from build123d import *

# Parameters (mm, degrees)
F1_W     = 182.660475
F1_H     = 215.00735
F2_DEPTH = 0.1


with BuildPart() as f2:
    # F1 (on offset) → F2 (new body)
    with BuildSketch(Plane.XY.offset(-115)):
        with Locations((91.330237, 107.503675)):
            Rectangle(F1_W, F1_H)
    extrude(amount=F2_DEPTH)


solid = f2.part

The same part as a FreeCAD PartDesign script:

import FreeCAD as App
import Part
import Sketcher


def add_polygon(sketch, points):
    """Adds a closed chain of lines whose ends are joined by coincident constraints."""
    first, n = sketch.GeometryCount, len(points)
    for a, b in zip(points, points[1:] + points[:1]):
        sketch.addGeometry(Part.LineSegment(App.Vector(*a, 0), App.Vector(*b, 0)), False)
    for i in range(n):
        sketch.addConstraint(Sketcher.Constraint("Coincident", first + i, 2, first + (i + 1) % n, 1))

doc = App.newDocument("Part")
params = doc.addObject("Spreadsheet::Sheet", "Params")
for row, (alias, value) in enumerate([
    ("pad1_length", "0.1 mm"),
], start=1):
    params.set(f"A{row}", alias)
    params.set(f"B{row}", "=" + value)
    params.setAlias(f"B{row}", alias)

body = doc.addObject("PartDesign::Body", "Body")

sketch1 = body.newObject("Sketcher::SketchObject", "Sketch")
sketch1.AttachmentSupport = (doc.getObject("XY_Plane"), [""])
sketch1.MapMode = "FlatFace"
sketch1.AttachmentOffset = App.Placement(App.Vector(0, 0, -115), App.Rotation())
add_polygon(sketch1, [(0, 215.00735), (0, 0), (182.660474, 0), (182.660474, 215.00735)])
sketch1.addConstraint([
    Sketcher.Constraint("Vertical", 0),
    Sketcher.Constraint("Horizontal", 1),
    Sketcher.Constraint("Vertical", 2),
    Sketcher.Constraint("Horizontal", 3),
    Sketcher.Constraint("Coincident", 0, 2, -1, 1),
    Sketcher.Constraint("DistanceY", 0, 2, 0, 1, 215.00735),
    Sketcher.Constraint("DistanceX", 1, 1, 1, 2, 182.660475),
])
pad1 = body.newObject("PartDesign::Pad", "Pad")
pad1.Profile = sketch1
pad1.setExpression("Length", "Params.pad1_length")

doc.recompute()
